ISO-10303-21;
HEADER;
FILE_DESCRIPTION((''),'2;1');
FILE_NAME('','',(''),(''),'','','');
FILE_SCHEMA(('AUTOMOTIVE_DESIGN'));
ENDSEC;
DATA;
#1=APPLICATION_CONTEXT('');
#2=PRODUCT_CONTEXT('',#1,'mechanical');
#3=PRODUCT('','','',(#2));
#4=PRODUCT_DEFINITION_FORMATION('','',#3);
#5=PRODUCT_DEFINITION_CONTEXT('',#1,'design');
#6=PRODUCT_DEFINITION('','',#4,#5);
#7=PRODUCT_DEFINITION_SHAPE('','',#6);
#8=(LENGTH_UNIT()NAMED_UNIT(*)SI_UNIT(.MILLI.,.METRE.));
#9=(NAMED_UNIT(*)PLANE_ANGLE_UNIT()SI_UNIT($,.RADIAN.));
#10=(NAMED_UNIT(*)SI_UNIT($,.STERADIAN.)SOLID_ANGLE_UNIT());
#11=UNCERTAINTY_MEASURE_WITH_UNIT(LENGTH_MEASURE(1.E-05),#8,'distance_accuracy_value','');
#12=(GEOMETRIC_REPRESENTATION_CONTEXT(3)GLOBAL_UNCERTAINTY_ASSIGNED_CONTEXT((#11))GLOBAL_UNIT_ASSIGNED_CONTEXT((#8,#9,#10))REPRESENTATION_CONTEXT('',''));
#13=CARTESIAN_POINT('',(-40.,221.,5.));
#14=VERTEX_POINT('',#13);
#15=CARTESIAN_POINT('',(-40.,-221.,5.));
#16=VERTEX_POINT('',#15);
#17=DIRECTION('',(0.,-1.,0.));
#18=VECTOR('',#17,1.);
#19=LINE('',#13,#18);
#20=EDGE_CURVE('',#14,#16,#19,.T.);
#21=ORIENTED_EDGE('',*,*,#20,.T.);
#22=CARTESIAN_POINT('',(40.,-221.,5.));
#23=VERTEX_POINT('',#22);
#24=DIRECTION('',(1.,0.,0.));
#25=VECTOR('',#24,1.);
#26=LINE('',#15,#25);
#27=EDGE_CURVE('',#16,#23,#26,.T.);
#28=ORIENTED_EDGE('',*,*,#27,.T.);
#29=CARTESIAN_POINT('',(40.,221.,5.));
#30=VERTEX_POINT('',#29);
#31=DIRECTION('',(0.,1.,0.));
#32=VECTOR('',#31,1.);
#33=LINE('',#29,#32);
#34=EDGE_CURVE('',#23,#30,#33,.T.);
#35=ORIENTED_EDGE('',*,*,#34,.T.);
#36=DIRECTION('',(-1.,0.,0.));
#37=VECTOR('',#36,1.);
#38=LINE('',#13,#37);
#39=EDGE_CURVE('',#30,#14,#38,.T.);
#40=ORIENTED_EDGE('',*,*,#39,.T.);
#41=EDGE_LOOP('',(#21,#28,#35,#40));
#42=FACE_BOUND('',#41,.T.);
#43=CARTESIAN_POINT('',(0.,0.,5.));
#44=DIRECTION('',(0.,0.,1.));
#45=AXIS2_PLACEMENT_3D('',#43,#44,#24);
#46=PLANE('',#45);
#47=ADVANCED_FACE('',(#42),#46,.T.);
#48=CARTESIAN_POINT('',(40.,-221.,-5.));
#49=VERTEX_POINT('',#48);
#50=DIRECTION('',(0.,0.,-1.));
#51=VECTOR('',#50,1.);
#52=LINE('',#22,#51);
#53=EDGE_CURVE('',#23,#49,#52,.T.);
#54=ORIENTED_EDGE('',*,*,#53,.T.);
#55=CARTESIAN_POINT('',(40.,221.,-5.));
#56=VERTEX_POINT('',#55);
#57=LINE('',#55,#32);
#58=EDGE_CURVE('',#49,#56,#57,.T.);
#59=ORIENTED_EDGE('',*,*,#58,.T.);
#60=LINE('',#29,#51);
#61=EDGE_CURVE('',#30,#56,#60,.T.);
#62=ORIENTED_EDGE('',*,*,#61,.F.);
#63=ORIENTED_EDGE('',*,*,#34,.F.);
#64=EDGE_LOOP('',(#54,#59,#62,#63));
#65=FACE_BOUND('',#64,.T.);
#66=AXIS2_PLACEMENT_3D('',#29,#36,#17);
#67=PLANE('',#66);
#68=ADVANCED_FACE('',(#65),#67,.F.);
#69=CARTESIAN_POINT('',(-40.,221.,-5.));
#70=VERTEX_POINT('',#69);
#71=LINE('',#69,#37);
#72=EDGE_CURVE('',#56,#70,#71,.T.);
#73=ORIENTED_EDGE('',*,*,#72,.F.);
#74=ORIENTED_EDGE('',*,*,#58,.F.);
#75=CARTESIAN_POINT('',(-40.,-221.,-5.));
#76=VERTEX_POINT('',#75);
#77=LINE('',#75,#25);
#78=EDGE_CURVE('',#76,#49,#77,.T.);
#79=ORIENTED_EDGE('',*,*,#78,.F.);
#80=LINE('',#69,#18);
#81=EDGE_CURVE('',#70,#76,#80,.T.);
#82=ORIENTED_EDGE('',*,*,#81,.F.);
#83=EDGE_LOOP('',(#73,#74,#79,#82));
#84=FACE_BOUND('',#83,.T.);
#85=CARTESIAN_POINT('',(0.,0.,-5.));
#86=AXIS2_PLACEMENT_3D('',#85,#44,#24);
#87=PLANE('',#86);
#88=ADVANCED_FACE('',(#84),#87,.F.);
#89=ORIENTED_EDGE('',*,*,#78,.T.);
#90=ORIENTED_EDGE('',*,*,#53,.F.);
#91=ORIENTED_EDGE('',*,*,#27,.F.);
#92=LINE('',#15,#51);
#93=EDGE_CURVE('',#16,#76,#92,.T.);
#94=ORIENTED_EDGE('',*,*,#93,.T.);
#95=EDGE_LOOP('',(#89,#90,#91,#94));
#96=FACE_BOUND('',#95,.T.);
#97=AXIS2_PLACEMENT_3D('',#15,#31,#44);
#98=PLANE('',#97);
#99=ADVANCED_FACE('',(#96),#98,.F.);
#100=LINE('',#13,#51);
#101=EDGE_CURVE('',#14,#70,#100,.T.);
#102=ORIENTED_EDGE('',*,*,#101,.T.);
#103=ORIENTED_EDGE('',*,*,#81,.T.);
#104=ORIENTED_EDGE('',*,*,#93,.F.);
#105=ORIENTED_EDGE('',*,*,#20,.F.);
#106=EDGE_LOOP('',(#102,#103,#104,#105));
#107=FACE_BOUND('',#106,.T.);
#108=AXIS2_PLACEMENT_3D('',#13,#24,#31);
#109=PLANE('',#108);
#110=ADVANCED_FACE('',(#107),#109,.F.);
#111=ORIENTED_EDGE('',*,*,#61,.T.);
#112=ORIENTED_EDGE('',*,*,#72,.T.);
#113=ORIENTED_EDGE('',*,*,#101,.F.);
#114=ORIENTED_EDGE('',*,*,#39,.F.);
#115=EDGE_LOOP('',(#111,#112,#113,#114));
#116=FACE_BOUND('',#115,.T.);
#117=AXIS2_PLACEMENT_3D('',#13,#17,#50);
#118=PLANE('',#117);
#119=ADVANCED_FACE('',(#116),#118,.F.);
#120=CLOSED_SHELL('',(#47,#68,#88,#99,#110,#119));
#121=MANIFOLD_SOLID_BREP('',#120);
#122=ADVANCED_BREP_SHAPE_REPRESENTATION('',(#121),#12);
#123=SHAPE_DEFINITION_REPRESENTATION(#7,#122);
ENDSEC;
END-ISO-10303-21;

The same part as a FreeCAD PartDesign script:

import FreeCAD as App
import Part
import Sketcher

V = App.Vector
Q = App.Units.Quantity

doc = App.newDocument("Part")
params = doc.addObject("Spreadsheet::Sheet", "Params")
for row, (alias, value) in enumerate([
    ("sketch1_width", "80 mm"),
    ("sketch1_height", "442 mm"),
    ("pad1_length", "10 mm"),
], start=1):
    params.set(f"A{row}", alias)
    params.set(f"B{row}", "=" + value)
    params.setAlias(f"B{row}", alias)

body = doc.addObject("PartDesign::Body", "Body")

# Sketch on XY plane
sketch1 = body.newObject("Sketcher::SketchObject", "Sketch")
sketch1.AttachmentSupport = (doc.getObject("XY_Plane"), [""])
sketch1.MapMode = "FlatFace"
sketch1.addGeometry([
    Part.LineSegment(V(-40, 221, 0), V(-40, -221, 0)),
    Part.LineSegment(V(-40, -221, 0), V(40, -221, 0)),
    Part.LineSegment(V(40, -221, 0), V(40, 221, 0)),
    Part.LineSegment(V(40, 221, 0), V(-40, 221, 0)),
], False)
sketch1.addConstraint([
    Sketcher.Constraint("Coincident", 0, 2, 1, 1),
    Sketcher.Constraint("Coincident", 1, 2, 2, 1),
    Sketcher.Constraint("Coincident", 2, 2, 3, 1),
    Sketcher.Constraint("Coincident", 3, 2, 0, 1),
    Sketcher.Constraint("Vertical", 0),
    Sketcher.Constraint("Horizontal", 1),
    Sketcher.Constraint("Vertical", 2),
    Sketcher.Constraint("Horizontal", 3),
    Sketcher.Constraint("Symmetric", 0, 2, 2, 2, -1, 1),
    Sketcher.Constraint("DistanceX", 1, 1, 1, 2, Q("80 mm")),
    Sketcher.Constraint("DistanceY", 0, 2, 0, 1, Q("442 mm")),
])
sketch1.setExpression("Constraints[9]", "Params.sketch1_width")
sketch1.setExpression("Constraints[10]", "Params.sketch1_height")
pad1 = body.newObject("PartDesign::Pad", "Pad")
pad1.Profile = sketch1
pad1.setExpression("Length", "Params.pad1_length")
pad1.Midplane = True

doc.recompute()
